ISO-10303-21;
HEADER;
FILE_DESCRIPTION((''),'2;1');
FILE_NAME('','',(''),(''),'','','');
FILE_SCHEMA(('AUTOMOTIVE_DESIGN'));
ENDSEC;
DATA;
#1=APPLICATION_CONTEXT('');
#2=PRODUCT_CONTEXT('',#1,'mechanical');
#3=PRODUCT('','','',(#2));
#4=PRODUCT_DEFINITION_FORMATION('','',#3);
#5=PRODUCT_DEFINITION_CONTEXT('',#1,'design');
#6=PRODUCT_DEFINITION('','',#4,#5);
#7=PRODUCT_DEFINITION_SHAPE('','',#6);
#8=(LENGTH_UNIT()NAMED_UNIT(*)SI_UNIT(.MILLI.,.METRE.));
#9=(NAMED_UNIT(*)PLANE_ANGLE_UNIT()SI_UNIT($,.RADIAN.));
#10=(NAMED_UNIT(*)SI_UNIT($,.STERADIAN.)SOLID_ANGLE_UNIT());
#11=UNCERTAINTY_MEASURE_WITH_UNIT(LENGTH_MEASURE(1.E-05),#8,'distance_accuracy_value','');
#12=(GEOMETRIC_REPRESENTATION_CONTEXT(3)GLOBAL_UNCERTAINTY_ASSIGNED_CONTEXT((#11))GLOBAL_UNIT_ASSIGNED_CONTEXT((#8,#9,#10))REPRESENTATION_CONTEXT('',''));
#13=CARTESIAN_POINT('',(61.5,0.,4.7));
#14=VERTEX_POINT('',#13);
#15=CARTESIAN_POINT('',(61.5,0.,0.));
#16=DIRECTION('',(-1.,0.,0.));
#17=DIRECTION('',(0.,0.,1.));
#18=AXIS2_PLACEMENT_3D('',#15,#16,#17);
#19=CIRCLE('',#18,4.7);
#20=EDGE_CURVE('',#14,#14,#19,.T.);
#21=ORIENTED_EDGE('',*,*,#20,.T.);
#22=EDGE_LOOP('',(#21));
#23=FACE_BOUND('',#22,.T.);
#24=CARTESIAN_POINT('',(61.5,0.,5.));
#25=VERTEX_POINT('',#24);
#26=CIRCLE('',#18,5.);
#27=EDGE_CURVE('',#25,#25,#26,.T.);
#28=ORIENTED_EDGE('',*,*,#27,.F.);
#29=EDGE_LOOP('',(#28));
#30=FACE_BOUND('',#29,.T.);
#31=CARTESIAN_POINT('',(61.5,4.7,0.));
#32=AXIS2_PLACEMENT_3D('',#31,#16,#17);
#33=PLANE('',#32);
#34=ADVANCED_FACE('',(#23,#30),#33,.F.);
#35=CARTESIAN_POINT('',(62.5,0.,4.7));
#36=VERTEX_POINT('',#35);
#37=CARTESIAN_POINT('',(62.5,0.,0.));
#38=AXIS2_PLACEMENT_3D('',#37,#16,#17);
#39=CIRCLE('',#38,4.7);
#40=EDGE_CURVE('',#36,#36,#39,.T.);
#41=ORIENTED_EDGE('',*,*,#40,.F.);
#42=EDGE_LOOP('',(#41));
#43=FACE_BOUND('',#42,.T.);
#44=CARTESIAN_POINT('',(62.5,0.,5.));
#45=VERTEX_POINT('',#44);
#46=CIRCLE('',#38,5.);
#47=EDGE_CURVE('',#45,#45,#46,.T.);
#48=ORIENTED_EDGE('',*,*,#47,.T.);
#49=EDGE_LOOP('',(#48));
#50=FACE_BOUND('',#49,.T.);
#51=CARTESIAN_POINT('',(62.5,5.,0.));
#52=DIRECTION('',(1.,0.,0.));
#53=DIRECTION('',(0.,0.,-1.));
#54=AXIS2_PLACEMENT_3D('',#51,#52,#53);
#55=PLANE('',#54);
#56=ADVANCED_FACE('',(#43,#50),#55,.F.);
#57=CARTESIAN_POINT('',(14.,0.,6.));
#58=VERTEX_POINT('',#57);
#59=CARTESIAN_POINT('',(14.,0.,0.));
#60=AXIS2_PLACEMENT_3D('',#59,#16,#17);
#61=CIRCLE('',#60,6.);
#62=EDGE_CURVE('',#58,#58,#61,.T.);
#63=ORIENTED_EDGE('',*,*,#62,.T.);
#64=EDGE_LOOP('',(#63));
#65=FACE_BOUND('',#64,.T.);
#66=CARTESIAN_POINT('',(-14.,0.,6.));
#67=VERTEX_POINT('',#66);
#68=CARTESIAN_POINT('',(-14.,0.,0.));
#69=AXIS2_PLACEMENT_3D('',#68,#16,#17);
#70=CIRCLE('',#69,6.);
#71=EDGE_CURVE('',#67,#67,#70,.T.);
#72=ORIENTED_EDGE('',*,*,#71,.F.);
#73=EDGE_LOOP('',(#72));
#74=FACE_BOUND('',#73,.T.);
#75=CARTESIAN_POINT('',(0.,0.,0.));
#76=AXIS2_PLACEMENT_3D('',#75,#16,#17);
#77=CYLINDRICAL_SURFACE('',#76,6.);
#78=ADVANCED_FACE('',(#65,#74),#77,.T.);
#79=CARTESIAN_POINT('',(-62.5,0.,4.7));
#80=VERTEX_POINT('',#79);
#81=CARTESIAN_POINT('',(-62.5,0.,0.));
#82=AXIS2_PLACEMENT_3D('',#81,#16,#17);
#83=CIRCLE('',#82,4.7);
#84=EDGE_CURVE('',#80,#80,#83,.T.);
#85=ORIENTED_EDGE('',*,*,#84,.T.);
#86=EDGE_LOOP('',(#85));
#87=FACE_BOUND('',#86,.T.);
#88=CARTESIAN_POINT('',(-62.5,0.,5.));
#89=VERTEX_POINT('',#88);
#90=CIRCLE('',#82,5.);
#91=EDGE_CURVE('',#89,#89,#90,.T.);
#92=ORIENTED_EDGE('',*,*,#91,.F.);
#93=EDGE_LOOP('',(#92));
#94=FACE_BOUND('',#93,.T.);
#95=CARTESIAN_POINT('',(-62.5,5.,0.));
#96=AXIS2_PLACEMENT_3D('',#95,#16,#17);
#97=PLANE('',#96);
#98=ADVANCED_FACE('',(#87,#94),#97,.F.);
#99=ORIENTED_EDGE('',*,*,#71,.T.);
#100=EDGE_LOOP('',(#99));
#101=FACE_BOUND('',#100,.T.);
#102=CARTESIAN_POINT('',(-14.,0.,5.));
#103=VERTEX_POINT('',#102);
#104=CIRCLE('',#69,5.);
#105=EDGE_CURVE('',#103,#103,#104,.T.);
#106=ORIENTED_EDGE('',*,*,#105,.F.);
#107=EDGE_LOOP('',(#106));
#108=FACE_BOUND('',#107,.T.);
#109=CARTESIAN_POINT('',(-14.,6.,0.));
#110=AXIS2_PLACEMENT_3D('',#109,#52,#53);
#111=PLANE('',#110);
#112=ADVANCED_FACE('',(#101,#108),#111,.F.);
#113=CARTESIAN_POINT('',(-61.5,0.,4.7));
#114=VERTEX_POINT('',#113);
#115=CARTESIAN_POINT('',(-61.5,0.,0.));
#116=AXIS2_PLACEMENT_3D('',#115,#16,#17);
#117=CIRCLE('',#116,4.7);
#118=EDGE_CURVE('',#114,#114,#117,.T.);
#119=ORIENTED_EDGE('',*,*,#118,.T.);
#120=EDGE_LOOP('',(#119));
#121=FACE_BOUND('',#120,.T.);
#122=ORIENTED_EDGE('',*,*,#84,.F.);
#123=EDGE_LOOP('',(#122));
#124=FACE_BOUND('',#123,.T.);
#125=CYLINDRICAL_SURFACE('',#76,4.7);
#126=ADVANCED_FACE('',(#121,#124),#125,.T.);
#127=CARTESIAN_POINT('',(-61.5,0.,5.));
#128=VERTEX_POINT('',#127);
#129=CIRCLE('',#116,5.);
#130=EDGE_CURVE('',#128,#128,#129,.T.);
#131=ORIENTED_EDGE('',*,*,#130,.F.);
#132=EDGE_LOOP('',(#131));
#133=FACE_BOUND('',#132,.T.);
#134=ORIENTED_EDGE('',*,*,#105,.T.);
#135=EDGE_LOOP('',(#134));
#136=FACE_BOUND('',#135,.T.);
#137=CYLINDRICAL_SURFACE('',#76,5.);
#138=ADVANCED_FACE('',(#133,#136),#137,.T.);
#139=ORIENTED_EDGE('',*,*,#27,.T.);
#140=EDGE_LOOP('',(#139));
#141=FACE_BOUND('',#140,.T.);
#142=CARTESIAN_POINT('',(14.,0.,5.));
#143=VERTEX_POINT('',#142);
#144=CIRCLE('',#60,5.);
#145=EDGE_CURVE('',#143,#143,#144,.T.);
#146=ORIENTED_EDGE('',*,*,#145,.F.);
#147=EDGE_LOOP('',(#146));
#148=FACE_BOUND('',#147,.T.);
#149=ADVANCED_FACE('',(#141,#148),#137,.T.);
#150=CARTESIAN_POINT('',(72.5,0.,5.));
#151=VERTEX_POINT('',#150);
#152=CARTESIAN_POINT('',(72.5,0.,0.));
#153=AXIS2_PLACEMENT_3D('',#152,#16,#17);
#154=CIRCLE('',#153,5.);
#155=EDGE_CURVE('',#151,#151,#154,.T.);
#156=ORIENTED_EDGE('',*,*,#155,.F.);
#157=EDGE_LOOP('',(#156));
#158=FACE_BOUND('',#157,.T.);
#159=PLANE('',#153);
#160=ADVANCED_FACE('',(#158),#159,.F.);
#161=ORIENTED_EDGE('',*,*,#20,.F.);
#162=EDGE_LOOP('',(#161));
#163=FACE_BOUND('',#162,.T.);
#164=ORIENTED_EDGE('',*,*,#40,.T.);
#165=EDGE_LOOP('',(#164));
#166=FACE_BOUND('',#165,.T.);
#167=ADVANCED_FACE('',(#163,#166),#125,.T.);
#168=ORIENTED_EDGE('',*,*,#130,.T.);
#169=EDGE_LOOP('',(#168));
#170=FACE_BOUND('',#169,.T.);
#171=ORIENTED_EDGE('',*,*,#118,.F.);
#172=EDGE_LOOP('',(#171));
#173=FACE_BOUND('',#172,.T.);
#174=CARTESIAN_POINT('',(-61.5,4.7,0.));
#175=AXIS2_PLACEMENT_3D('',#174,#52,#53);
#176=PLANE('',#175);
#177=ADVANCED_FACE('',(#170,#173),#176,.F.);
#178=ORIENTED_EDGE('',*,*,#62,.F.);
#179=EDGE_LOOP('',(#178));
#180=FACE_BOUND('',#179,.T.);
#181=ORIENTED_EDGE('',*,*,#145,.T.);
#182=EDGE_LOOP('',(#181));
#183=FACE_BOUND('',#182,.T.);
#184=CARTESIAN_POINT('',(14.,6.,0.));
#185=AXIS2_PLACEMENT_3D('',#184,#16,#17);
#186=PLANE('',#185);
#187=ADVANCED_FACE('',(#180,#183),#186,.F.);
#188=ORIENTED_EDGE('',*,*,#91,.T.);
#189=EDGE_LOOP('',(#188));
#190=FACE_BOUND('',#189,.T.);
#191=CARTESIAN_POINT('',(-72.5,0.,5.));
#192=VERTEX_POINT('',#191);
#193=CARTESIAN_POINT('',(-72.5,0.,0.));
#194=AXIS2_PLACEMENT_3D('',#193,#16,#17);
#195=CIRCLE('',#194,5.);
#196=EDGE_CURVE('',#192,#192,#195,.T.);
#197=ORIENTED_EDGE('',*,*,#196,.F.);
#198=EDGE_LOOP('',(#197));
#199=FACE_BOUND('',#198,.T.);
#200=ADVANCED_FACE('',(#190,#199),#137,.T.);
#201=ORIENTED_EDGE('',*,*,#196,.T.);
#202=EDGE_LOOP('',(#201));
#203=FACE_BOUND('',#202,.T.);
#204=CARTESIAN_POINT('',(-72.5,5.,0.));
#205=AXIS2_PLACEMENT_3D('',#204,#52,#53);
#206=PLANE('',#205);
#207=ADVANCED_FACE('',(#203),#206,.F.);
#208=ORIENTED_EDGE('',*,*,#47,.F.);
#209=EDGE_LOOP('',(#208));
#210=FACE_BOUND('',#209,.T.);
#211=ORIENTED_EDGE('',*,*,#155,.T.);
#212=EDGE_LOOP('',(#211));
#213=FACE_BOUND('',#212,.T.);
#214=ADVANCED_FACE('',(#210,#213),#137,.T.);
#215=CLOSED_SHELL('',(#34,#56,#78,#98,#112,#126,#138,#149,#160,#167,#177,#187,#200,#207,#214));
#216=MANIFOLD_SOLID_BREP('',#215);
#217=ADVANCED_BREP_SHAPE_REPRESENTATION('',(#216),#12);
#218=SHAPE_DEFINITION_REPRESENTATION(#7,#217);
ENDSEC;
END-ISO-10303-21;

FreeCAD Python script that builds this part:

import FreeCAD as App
import Part
import Sketcher

doc = App.newDocument("Part")
body = doc.addObject("PartDesign::Body", "Body")

# Sketch on XY plane
sketch1 = body.newObject("Sketcher::SketchObject", "Sketch")
sketch1.AttachmentSupport = (doc.getObject("XY_Plane"), [""])
sketch1.MapMode = "FlatFace"
sketch1.addGeometry([
    Part.LineSegment(App.Vector(14, 6, 0), App.Vector(-14, 6, 0)),  # 0
    Part.LineSegment(App.Vector(-14, 6, 0), App.Vector(-14, 5, 0)),  # 1
    Part.LineSegment(App.Vector(-14, 5, 0), App.Vector(-61.5, 5, 0)),  # 2
    Part.LineSegment(App.Vector(-61.5, 5, 0), App.Vector(-61.5, 4.7, 0)),  # 3
    Part.LineSegment(App.Vector(-61.5, 4.7, 0), App.Vector(-62.5, 4.7, 0)),  # 4
    Part.LineSegment(App.Vector(-62.5, 4.7, 0), App.Vector(-62.5, 5, 0)),  # 5
    Part.LineSegment(App.Vector(-62.5, 5, 0), App.Vector(-72.5, 5, 0)),  # 6
    Part.LineSegment(App.Vector(-72.5, 5, 0), App.Vector(-72.5, 0, 0)),  # 7
    Part.LineSegment(App.Vector(-72.5, 0, 0), App.Vector(72.5, 0, 0)),  # 8
    Part.LineSegment(App.Vector(72.5, 0, 0), App.Vector(72.5, 5, 0)),  # 9
    Part.LineSegment(App.Vector(72.5, 5, 0), App.Vector(62.5, 5, 0)),  # 10
    Part.LineSegment(App.Vector(62.5, 5, 0), App.Vector(62.5, 4.7, 0)),  # 11
    Part.LineSegment(App.Vector(62.5, 4.7, 0), App.Vector(61.5, 4.7, 0)),  # 12
    Part.LineSegment(App.Vector(61.5, 4.7, 0), App.Vector(61.5, 5, 0)),  # 13
    Part.LineSegment(App.Vector(61.5, 5, 0), App.Vector(14, 5, 0)),  # 14
    Part.LineSegment(App.Vector(14, 5, 0), App.Vector(14, 6, 0)),  # 15
], False)
sketch1.addConstraint([
    Sketcher.Constraint("Coincident", 0, 2, 1, 1),
    Sketcher.Constraint("Coincident", 1, 2, 2, 1),
    Sketcher.Constraint("Coincident", 2, 2, 3, 1),
    Sketcher.Constraint("Coincident", 3, 2, 4, 1),
    Sketcher.Constraint("Coincident", 4, 2, 5, 1),
    Sketcher.Constraint("Coincident", 5, 2, 6, 1),
    Sketcher.Constraint("Coincident", 6, 2, 7, 1),
    Sketcher.Constraint("Coincident", 7, 2, 8, 1),
    Sketcher.Constraint("Coincident", 8, 2, 9, 1),
    Sketcher.Constraint("Coincident", 9, 2, 10, 1),
    Sketcher.Constraint("Coincident", 10, 2, 11, 1),
    Sketcher.Constraint("Coincident", 11, 2, 12, 1),
    Sketcher.Constraint("Coincident", 12, 2, 13, 1),
    Sketcher.Constraint("Coincident", 13, 2, 14, 1),
    Sketcher.Constraint("Coincident", 14, 2, 15, 1),
    Sketcher.Constraint("Coincident", 15, 2, 0, 1),
    Sketcher.Constraint("Horizontal", 0),
    Sketcher.Constraint("Vertical", 1),
    Sketcher.Constraint("Horizontal", 2),
    Sketcher.Constraint("Vertical", 3),
    Sketcher.Constraint("Horizontal", 4),
    Sketcher.Constraint("Vertical", 5),
    Sketcher.Constraint("Horizontal", 6),
    Sketcher.Constraint("Vertical", 7),
    Sketcher.Constraint("Horizontal", 8),
    Sketcher.Constraint("Vertical", 9),
    Sketcher.Constraint("Horizontal", 10),
    Sketcher.Constraint("Vertical", 11),
    Sketcher.Constraint("Horizontal", 12),
    Sketcher.Constraint("Vertical", 13),
    Sketcher.Constraint("Horizontal", 14),
    Sketcher.Constraint("Vertical", 15),
    Sketcher.Constraint("Symmetric", 7, 2, 8, 2, -1, 1),
    Sketcher.Constraint("Symmetric", 5, 2, 10, 2, -2),
    Sketcher.Constraint("Symmetric", 3, 2, 12, 2, -2),
    Sketcher.Constraint("Symmetric", 1, 2, 14, 2, -2),
    Sketcher.Constraint("Horizontal", 2, 2, 5, 2),
    Sketcher.Constraint("Equal", 12, 1),
    Sketcher.Constraint("DistanceX", 0, 2, 0, 1, 28.0),
    Sketcher.Constraint("DistanceX", 4, 2, 4, 1, 1.0),
    Sketcher.Constraint("DistanceX", 6, 2, 6, 1, 10.0),
    Sketcher.Constraint("DistanceX", 8, 1, 8, 2, 145.0),
    Sketcher.Constraint("DistanceY", 7, 2, 7, 1, 5.0),
    Sketcher.Constraint("DistanceY", 3, 2, 3, 1, 0.3),
])
revolution = body.newObject("PartDesign::Revolution", "Revolution")
revolution.Profile = sketch1
revolution.ReferenceAxis = (sketch1, ["H_Axis"])
revolution.Angle = 360

doc.recompute()
